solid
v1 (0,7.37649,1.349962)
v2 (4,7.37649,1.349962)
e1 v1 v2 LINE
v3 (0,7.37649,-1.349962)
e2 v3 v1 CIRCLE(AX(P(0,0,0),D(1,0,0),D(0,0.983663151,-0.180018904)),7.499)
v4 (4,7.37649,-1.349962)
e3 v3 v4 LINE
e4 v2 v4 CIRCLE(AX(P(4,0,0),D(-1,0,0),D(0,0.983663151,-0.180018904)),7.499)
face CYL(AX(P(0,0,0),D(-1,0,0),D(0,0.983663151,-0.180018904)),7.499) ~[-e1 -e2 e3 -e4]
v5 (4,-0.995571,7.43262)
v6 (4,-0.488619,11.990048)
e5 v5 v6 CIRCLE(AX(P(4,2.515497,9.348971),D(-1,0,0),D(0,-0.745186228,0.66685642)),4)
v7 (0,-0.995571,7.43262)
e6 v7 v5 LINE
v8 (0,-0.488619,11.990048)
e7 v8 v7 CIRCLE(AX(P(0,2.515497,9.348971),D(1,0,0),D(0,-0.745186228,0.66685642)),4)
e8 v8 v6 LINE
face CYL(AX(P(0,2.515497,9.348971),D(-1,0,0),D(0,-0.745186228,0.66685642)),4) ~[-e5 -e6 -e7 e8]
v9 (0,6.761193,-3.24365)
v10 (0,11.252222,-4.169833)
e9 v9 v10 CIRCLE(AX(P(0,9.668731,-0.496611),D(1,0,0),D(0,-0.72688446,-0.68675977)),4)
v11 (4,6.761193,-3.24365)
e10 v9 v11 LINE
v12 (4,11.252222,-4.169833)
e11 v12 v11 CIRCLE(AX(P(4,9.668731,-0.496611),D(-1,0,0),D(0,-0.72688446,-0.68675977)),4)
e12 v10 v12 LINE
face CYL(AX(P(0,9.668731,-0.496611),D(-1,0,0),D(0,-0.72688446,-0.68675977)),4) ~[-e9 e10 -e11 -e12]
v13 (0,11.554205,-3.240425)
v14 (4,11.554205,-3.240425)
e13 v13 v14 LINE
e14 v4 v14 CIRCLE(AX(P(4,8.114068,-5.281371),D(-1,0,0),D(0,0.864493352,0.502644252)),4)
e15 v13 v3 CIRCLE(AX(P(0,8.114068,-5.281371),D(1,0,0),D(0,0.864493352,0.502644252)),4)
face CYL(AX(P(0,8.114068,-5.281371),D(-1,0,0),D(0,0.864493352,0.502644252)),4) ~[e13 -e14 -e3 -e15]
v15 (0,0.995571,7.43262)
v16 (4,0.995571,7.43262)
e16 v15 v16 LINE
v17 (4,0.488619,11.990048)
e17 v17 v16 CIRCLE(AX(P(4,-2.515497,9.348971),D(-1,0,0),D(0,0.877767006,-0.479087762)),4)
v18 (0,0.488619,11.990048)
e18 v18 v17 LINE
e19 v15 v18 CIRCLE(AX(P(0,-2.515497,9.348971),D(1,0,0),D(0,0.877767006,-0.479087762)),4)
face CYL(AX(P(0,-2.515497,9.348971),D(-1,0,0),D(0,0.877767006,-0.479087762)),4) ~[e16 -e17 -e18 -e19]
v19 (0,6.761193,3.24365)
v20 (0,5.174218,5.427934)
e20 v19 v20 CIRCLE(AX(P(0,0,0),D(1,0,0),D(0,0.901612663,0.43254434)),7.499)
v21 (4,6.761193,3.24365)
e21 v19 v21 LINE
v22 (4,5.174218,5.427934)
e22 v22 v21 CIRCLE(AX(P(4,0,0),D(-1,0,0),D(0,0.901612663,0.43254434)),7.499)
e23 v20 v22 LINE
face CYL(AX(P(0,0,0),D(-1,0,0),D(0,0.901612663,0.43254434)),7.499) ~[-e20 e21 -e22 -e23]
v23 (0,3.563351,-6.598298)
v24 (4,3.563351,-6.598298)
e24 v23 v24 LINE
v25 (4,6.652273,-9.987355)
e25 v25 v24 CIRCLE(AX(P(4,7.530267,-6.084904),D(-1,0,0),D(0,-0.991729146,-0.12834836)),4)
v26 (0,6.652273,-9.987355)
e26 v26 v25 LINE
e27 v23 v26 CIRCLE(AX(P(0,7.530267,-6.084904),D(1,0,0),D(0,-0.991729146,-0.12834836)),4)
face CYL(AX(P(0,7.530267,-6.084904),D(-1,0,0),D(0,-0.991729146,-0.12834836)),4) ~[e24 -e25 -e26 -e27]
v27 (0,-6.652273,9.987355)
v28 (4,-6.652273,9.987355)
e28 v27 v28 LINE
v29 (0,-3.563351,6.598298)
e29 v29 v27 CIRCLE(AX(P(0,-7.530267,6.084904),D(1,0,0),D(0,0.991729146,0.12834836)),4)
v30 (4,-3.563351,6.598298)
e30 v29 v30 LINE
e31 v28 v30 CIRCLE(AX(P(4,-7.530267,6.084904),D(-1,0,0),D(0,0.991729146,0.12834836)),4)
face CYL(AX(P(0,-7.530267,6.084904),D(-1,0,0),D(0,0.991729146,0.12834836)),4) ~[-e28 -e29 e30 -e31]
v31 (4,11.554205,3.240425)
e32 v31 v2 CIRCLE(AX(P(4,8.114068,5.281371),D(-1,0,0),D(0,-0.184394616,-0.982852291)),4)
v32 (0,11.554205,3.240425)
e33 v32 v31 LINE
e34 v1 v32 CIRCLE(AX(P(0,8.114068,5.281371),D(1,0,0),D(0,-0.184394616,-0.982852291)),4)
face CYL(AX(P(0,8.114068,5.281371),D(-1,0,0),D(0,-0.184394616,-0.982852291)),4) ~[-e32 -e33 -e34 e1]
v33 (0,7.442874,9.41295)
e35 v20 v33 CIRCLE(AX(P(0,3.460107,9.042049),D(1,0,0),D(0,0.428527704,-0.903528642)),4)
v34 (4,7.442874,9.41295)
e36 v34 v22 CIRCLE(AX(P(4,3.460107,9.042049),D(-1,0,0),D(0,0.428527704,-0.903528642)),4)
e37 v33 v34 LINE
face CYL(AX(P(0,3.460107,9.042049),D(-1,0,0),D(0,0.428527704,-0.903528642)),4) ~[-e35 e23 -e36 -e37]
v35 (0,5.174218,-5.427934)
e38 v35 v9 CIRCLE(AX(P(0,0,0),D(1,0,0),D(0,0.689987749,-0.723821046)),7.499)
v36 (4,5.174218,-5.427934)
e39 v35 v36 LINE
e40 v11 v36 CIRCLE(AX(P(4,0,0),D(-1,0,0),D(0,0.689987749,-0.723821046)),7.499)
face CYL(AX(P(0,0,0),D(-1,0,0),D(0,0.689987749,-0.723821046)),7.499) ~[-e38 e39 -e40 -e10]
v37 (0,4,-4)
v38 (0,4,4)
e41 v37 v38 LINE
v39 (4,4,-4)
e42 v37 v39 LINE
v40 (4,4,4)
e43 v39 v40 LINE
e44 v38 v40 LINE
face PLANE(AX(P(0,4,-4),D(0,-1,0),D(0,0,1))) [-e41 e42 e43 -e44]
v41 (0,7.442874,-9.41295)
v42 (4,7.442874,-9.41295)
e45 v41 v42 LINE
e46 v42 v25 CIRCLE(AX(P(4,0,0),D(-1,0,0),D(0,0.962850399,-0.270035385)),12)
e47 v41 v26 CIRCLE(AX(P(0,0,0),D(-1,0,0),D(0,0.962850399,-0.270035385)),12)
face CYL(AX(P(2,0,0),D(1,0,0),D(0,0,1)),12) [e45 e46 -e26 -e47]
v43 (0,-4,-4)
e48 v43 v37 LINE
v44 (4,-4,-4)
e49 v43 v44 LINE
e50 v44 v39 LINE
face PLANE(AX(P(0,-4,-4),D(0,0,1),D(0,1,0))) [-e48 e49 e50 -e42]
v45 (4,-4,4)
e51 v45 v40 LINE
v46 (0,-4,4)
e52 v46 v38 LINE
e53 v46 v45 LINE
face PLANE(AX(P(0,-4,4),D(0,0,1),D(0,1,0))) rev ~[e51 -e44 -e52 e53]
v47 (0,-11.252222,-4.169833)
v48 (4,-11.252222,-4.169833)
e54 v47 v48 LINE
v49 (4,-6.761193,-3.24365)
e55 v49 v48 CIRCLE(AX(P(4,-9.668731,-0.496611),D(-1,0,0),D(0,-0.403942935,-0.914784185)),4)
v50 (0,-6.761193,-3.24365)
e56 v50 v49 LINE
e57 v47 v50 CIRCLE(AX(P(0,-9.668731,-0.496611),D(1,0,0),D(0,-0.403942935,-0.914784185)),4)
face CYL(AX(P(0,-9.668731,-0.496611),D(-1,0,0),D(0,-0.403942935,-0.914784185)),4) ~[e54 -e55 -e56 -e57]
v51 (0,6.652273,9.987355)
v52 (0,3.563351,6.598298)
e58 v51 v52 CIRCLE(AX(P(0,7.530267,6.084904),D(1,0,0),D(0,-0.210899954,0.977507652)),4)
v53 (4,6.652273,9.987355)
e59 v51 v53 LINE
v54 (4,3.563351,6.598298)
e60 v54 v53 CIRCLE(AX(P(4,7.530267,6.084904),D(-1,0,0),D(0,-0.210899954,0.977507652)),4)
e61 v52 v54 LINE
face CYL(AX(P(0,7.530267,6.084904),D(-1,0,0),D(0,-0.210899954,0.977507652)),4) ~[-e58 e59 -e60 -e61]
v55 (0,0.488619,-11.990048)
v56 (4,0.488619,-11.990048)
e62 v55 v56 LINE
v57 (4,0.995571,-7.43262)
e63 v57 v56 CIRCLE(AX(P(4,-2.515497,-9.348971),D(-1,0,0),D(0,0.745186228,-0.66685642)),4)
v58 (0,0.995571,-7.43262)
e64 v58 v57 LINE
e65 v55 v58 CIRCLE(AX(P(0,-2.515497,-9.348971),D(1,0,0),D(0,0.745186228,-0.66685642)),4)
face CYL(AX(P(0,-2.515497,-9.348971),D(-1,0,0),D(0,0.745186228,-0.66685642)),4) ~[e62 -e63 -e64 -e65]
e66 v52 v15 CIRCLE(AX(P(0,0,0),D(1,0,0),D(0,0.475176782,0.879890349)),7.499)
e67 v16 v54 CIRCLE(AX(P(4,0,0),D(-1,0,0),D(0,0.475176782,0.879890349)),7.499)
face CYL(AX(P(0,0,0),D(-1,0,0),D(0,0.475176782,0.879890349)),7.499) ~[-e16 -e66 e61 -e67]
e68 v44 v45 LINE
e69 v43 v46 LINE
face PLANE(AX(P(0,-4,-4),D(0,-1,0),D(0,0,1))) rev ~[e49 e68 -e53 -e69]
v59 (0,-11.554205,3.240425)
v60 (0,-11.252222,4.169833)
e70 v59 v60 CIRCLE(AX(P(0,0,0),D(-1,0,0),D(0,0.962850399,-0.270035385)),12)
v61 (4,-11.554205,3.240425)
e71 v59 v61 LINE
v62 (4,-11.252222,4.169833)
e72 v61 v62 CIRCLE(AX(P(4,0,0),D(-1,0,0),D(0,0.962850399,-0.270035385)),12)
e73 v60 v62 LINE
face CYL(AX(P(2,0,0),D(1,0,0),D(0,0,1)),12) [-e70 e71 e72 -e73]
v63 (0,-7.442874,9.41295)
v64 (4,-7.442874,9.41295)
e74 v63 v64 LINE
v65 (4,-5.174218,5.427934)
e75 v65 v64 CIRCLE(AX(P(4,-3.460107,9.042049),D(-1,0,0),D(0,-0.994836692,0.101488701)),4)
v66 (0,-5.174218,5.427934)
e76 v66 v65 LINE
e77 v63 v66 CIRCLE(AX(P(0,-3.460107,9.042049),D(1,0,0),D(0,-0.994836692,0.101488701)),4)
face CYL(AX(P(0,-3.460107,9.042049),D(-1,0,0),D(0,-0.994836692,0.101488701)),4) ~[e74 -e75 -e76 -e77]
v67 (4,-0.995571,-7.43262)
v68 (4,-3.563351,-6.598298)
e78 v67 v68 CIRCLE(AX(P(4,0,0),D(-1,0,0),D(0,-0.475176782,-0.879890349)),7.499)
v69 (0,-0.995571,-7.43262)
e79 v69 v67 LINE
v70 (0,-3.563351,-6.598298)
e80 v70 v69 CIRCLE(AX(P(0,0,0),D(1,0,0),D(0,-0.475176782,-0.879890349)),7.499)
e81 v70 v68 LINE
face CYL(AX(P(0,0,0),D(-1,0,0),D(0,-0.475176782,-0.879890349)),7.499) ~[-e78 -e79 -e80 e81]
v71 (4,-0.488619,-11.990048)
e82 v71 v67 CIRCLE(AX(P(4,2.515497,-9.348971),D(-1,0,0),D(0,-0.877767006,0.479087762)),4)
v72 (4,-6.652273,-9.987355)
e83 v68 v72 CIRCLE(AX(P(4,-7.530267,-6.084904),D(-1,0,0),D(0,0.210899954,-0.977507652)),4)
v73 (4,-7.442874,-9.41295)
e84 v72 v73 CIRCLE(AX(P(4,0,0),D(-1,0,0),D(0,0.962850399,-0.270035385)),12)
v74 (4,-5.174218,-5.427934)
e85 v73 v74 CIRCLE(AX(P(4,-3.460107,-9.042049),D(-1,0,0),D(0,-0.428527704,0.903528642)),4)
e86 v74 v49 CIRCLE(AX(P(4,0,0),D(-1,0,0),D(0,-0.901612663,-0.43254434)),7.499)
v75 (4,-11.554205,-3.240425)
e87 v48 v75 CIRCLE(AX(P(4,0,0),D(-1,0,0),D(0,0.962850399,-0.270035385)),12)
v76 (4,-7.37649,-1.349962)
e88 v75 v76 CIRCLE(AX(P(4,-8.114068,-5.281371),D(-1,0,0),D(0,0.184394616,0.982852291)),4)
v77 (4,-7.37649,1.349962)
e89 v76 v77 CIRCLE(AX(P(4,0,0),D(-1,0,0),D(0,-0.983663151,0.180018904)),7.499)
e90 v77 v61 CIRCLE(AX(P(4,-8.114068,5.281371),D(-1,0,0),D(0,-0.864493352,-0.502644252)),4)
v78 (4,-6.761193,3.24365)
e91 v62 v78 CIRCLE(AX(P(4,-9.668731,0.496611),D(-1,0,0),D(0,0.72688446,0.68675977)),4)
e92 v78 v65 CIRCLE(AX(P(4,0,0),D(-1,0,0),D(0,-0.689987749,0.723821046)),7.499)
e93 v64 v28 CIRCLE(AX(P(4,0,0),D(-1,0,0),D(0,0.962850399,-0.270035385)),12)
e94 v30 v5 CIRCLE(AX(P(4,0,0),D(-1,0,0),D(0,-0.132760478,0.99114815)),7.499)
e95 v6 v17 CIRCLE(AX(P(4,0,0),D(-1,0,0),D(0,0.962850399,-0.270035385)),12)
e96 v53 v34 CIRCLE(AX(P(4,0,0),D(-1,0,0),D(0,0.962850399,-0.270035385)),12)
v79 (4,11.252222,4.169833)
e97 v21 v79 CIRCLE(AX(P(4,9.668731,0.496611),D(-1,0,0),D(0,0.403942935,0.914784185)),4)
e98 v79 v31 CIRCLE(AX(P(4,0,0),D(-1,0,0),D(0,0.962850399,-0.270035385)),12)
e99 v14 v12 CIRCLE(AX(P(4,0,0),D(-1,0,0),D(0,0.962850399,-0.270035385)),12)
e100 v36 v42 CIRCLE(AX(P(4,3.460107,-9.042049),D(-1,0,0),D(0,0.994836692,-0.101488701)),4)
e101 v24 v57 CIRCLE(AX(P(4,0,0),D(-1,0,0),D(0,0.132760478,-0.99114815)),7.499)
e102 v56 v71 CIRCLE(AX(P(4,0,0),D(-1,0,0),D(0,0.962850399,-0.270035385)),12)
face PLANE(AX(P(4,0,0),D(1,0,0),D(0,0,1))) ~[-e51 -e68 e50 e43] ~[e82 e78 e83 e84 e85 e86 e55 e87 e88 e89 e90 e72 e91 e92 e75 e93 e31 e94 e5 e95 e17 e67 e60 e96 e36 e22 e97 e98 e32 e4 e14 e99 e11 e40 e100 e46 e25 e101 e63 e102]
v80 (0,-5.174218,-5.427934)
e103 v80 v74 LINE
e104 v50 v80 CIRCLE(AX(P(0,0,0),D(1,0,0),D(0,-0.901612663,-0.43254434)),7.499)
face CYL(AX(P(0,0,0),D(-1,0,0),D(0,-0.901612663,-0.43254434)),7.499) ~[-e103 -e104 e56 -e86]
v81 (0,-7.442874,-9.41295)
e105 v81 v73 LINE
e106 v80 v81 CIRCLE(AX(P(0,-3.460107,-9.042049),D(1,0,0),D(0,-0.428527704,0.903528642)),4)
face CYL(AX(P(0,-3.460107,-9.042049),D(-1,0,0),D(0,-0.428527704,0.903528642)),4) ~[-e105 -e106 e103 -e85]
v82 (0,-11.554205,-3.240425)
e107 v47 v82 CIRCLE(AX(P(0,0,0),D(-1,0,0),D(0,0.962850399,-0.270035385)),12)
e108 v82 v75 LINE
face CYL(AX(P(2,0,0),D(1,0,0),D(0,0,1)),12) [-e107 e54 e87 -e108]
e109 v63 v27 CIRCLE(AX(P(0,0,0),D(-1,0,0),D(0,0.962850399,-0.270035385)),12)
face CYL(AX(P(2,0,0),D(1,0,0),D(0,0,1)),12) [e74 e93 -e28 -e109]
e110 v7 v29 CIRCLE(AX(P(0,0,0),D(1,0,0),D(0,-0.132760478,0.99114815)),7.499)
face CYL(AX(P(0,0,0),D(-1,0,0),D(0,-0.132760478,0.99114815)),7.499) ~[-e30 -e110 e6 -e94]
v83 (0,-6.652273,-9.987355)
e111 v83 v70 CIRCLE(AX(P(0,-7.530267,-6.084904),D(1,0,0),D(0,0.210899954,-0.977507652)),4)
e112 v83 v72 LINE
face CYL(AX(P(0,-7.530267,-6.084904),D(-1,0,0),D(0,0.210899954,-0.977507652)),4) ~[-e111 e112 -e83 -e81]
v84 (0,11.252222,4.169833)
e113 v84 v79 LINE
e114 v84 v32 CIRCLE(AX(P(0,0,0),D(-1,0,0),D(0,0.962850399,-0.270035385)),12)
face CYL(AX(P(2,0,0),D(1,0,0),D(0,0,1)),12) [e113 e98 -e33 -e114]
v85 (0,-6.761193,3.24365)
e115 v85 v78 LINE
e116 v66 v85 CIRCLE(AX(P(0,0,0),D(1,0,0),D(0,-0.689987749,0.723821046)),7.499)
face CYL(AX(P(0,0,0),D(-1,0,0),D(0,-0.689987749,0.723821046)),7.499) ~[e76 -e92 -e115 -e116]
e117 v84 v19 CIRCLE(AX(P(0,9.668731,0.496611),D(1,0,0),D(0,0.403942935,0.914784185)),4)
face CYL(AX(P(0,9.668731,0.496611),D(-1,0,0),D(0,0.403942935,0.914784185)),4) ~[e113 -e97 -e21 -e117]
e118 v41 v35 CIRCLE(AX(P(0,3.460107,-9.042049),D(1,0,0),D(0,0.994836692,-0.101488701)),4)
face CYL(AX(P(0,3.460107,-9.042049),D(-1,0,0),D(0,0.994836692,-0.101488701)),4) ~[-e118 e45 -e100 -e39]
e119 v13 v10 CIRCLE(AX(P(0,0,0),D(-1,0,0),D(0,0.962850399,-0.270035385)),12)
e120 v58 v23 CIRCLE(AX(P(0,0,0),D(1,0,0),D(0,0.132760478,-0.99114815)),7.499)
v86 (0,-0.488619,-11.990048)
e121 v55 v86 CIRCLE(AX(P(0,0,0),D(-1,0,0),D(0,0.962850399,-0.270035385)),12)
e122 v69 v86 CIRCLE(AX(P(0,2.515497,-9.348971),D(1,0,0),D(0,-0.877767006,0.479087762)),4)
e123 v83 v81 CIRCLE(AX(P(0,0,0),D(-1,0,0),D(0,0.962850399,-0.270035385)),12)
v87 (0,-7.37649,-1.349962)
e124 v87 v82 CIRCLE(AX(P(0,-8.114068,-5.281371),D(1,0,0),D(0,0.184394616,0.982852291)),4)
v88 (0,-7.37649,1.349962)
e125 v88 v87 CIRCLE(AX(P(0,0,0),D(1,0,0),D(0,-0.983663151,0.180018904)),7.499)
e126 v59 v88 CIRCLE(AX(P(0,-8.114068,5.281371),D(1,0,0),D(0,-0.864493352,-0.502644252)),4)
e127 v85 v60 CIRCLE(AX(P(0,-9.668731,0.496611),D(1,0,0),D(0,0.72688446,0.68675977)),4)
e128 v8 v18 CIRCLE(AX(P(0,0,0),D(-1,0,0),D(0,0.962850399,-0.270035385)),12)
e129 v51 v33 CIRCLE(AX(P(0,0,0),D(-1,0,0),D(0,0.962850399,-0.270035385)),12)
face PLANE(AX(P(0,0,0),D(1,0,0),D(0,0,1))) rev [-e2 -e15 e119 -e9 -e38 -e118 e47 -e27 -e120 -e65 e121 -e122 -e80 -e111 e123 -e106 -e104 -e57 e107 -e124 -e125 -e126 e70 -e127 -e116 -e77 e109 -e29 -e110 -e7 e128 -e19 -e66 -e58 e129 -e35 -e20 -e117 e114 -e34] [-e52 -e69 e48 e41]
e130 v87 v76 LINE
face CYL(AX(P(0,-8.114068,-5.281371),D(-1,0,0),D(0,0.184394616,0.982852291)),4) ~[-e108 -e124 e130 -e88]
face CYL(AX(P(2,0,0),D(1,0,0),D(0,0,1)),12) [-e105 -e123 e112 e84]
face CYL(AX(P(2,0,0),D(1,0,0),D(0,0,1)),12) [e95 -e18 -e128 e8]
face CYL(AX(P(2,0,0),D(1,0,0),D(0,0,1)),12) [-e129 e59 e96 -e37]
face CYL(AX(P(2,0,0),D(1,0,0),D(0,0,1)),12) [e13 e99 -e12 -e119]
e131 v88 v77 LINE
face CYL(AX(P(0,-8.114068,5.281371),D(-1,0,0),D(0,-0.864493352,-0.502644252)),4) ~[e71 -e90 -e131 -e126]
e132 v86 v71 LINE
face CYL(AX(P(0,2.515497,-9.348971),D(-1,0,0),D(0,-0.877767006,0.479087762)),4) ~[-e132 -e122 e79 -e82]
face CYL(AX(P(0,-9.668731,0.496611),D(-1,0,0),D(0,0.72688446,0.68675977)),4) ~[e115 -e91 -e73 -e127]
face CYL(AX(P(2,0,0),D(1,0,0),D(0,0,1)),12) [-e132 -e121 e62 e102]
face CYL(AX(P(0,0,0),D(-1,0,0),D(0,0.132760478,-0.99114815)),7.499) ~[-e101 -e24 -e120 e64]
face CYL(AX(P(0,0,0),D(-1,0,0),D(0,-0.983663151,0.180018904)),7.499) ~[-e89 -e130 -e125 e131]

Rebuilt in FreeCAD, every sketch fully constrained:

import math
import FreeCAD as App
import Part
import Sketcher
from FreeCAD import Vector
Q = App.Units.Quantity


def add_polygon(sketch, points):
    """Adds a closed chain of lines whose ends are joined by coincident constraints."""
    first, n = sketch.GeometryCount, len(points)
    for a, b in zip(points, points[1:] + points[:1]):
        sketch.addGeometry(Part.LineSegment(App.Vector(*a, 0), App.Vector(*b, 0)), False)
    for i in range(n):
        sketch.addConstraint(Sketcher.Constraint("Coincident", first + i, 2, first + (i + 1) % n, 1))

doc = App.newDocument("Part")
body = doc.addObject("PartDesign::Body", "Body")

sketch1 = body.newObject("Sketcher::SketchObject", "Sketch")
sketch1.AttachmentSupport = (doc.getObject("XZ_Plane"), [""])
sketch1.MapMode = "FlatFace"
add_polygon(sketch1, [(0, -12), (0, 0), (4, 0), (4, -12)])
sketch1.addConstraint(Sketcher.Constraint("Vertical", 0))
sketch1.addConstraint(Sketcher.Constraint("Horizontal", 1))
sketch1.addConstraint(Sketcher.Constraint("Vertical", 2))
sketch1.addConstraint(Sketcher.Constraint("Horizontal", 3))
sketch1.addConstraint(Sketcher.Constraint("Coincident", 0, 2, -1, 1))
sketch1.addConstraint(Sketcher.Constraint("DistanceX", 1, 1, 1, 2, Q("4 mm")))
sketch1.addConstraint(Sketcher.Constraint("DistanceY", 0, 1, 0, 2, Q("12 mm")))
revolution = body.newObject("PartDesign::Revolution", "Revolution")
revolution.Profile = sketch1
revolution.ReferenceAxis = (sketch1, ["H_Axis"])
revolution.Angle = 360

sketch2 = body.newObject("Sketcher::SketchObject", "Sketch001")
sketch2.AttachmentSupport = (doc.getObject("YZ_Plane"), [""])
sketch2.MapMode = "FlatFace"
sketch2.addGeometry(Part.ArcOfCircle(Part.Circle(Vector(0, 0, 0), Vector(0, 0, 1), 7.5), math.radians(-10), math.radians(10)), False)
sketch2.addGeometry(Part.ArcOfCircle(Part.Circle(Vector(8.1, -5.3, 0), Vector(0, 0, 1), 4), math.radians(30), math.radians(101)), False)
sketch2.addGeometry(Part.ArcOfCircle(Part.Circle(Vector(0, 0, 0), Vector(0, 0, 1), 12), math.radians(-16), math.radians(16)), False)
sketch2.addGeometry(Part.ArcOfCircle(Part.Circle(Vector(8.1, 5.3, 0), Vector(0, 0, 1), 4), math.radians(-101), math.radians(-30)), False)
sketch2.addConstraint(Sketcher.Constraint("Coincident", 0, 1, 1, 2))
sketch2.addConstraint(Sketcher.Constraint("Coincident", 1, 1, 2, 1))
sketch2.addConstraint(Sketcher.Constraint("Coincident", 2, 2, 3, 2))
sketch2.addConstraint(Sketcher.Constraint("Coincident", 3, 1, 0, 2))
sketch2.addConstraint(Sketcher.Constraint("Coincident", 0, 3, -1, 1))
sketch2.addConstraint(Sketcher.Constraint("Coincident", 2, 3, -1, 1))
sketch2.addConstraint(Sketcher.Constraint("Equal", 1, 3))
sketch2.addConstraint(Sketcher.Constraint("Symmetric", 1, 3, 3, 3, -1))
sketch2.addConstraint(Sketcher.Constraint("Radius", 1, Q("4 mm")))
sketch2.addConstraint(Sketcher.Constraint("Radius", 0, Q("7.499 mm")))
sketch2.addConstraint(Sketcher.Constraint("Radius", 2, Q("12.0254 mm")))
sketch2.addConstraint(Sketcher.Constraint("DistanceX", -1, 1, 1, 3, Q("8.114068 mm")))
sketch2.addConstraint(Sketcher.Constraint("DistanceY", 1, 3, -1, 1, Q("5.281371 mm")))
pocket1 = body.newObject("PartDesign::Pocket", "Pocket")
pocket1.Profile = sketch2
pocket1.Type = "ThroughAll"
pocket1.Reversed = True
doc.recompute()

polarpattern = body.newObject("PartDesign::PolarPattern", "PolarPattern")
polarpattern.Originals = [pocket1]
polarpattern.Axis = (doc.getObject("X_Axis"), [""])
polarpattern.Angle = 360
polarpattern.Occurrences = 10
body.Tip = polarpattern

sketch3 = body.newObject("Sketcher::SketchObject", "Sketch002")
sketch3.AttachmentSupport = (doc.getObject("YZ_Plane"), [""])
sketch3.MapMode = "FlatFace"
sketch3.addGeometry(Part.Circle(Vector(0, 0, 0), Vector(0, 0, 1), 1), False)
sketch3.addConstraint(Sketcher.Constraint("Coincident", 0, 3, -1, 1))
sketch3.addConstraint(Sketcher.Constraint("Diameter", 0, Q("2 mm")))
pocket2 = body.newObject("PartDesign::Pocket", "Pocket001")
pocket2.Profile = sketch3
pocket2.Length = 100.000102
pocket2.Midplane = True

sketch4 = body.newObject("Sketcher::SketchObject", "Sketch003")
sketch4.AttachmentSupport = (doc.getObject("YZ_Plane"), [""])
sketch4.MapMode = "FlatFace"
add_polygon(sketch4, [(4, -4), (-4, -4), (-4, 4), (4, 4)])
sketch4.addConstraint(Sketcher.Constraint("Horizontal", 0))
sketch4.addConstraint(Sketcher.Constraint("Vertical", 1))
sketch4.addConstraint(Sketcher.Constraint("Horizontal", 2))
sketch4.addConstraint(Sketcher.Constraint("Vertical", 3))
sketch4.addConstraint(Sketcher.Constraint("Symmetric", 0, 2, 2, 2, -1, 1))
sketch4.addConstraint(Sketcher.Constraint("Equal", 2, 1))
sketch4.addConstraint(Sketcher.Constraint("DistanceX", 0, 2, 0, 1, Q("8 mm")))
pocket3 = body.newObject("PartDesign::Pocket", "Pocket002")
pocket3.Profile = sketch4
pocket3.Type = "ThroughAll"
pocket3.Reversed = True

doc.recompute()
